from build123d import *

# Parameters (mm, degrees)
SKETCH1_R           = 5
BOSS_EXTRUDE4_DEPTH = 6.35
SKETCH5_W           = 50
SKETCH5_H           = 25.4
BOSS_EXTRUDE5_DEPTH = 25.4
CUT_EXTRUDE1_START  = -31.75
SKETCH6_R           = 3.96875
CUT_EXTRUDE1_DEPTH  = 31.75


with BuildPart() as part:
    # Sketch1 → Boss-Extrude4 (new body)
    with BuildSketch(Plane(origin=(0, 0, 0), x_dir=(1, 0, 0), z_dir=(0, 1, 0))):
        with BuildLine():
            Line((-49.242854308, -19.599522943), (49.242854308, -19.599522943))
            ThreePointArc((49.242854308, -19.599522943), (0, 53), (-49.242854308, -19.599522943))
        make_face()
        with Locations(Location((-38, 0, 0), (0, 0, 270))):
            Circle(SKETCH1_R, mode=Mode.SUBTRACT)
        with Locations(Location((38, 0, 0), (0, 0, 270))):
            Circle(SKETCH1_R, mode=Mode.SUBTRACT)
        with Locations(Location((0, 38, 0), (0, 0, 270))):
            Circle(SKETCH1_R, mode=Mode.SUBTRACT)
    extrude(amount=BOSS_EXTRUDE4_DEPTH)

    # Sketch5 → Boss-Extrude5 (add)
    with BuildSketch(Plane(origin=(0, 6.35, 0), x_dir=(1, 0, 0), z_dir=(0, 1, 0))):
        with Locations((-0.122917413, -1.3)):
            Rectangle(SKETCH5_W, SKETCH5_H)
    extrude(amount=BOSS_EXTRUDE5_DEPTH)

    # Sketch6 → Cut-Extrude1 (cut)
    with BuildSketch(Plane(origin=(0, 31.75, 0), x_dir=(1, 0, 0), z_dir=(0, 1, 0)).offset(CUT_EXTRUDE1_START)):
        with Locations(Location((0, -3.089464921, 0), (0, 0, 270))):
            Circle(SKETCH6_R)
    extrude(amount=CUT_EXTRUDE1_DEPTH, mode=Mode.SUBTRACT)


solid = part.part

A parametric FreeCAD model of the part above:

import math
import FreeCAD as App
import Part
import Sketcher
Q = App.Units.Quantity


def add_polygon(sketch, points):
    """Adds a closed chain of lines whose ends are joined by coincident constraints."""
    first, n = sketch.GeometryCount, len(points)
    for a, b in zip(points, points[1:] + points[:1]):
        sketch.addGeometry(Part.LineSegment(App.Vector(*a, 0), App.Vector(*b, 0)), False)
    for i in range(n):
        sketch.addConstraint(Sketcher.Constraint("Coincident", first + i, 2, first + (i + 1) % n, 1))

doc = App.newDocument("Part")
body = doc.addObject("PartDesign::Body", "Body")

sketch1 = body.newObject("Sketcher::SketchObject", "Sketch")
sketch1.AttachmentSupport = (doc.getObject("XZ_Plane"), [""])
sketch1.MapMode = "FlatFace"
sketch1.addGeometry([
    Part.LineSegment(App.Vector(-49, 20, 0), App.Vector(49, 20, 0)),
    Part.ArcOfCircle(Part.Circle(App.Vector(0, 0, 0), App.Vector(0, 0, 1), 53), math.radians(158), math.radians(382)),
    Part.Circle(App.Vector(-38, 0, 0), App.Vector(0, 0, 1), 5),
    Part.Circle(App.Vector(38, 0, 0), App.Vector(0, 0, 1), 5),
    Part.Circle(App.Vector(0, -38, 0), App.Vector(0, 0, 1), 5),
], False)
sketch1.addConstraint([
    Sketcher.Constraint("Coincident", 0, 1, 1, 1),
    Sketcher.Constraint("Coincident", 1, 2, 0, 2),
    Sketcher.Constraint("Horizontal", 0),
    Sketcher.Constraint("Coincident", 1, 3, -1, 1),
    Sketcher.Constraint("Equal", 2, 3),
    Sketcher.Constraint("Equal", 3, 4),
    Sketcher.Constraint("Symmetric", 2, 3, 3, 3, -1, 1),
    Sketcher.Constraint("PointOnObject", 2, 3, -1),
    Sketcher.Constraint("PointOnObject", 4, 3, -2),
    Sketcher.Constraint("Diameter", 2, Q("10 mm")),
    Sketcher.Constraint("Radius", 1, Q("53 mm")),
    Sketcher.Constraint("DistanceX", 0, 1, 0, 2, Q("98.485709 mm")),
    Sketcher.Constraint("DistanceX", 2, 3, -1, 1, Q("38 mm")),
    Sketcher.Constraint("DistanceY", 4, 3, -1, 1, Q("38 mm")),
])
pad1 = body.newObject("PartDesign::Pad", "Pad")
pad1.Profile = sketch1
pad1.Length = Q("0.25 in")
pad1.Reversed = True

sketch2 = body.newObject("Sketcher::SketchObject", "Sketch001")
sketch2.AttachmentSupport = (doc.getObject("XZ_Plane"), [""])
sketch2.MapMode = "FlatFace"
sketch2.AttachmentOffset = App.Placement(App.Vector(0, 0, -0.25 * 25.4), App.Rotation())
add_polygon(sketch2, [(-25, -11), (-25, 14), (25, 14), (25, -11)])
sketch2.addConstraint([
    Sketcher.Constraint("Vertical", 0),
    Sketcher.Constraint("Horizontal", 1),
    Sketcher.Constraint("Vertical", 2),
    Sketcher.Constraint("Horizontal", 3),
    Sketcher.Constraint("DistanceY", 0, 1, 0, 2, Q("1 in")),
    Sketcher.Constraint("DistanceX", 1, 1, 1, 2, Q("50 mm")),
    Sketcher.Constraint("DistanceY", -1, 1, 0, 2, Q("14 mm")),
    Sketcher.Constraint("DistanceX", 0, 2, -1, 1, Q("25.122917 mm")),
])
pad2 = body.newObject("PartDesign::Pad", "Pad001")
pad2.Profile = sketch2
pad2.Length = Q("1 in")
pad2.Reversed = True

sketch3 = body.newObject("Sketcher::SketchObject", "Sketch002")
sketch3.AttachmentSupport = (doc.getObject("XZ_Plane"), [""])
sketch3.MapMode = "FlatFace"
sketch3.addGeometry(Part.Circle(App.Vector(0, 3.1, 0), App.Vector(0, 0, 1), 4), False)
sketch3.addConstraint([
    Sketcher.Constraint("PointOnObject", 0, 3, -2),
    Sketcher.Constraint("Diameter", 0, Q("0.3125 in")),
    Sketcher.Constraint("DistanceY", -1, 1, 0, 3, Q("3.089465 mm")),
])
pocket1 = body.newObject("PartDesign::Pocket", "Pocket")
pocket1.Profile = sketch3
pocket1.Length = Q("1.25 in")

doc.recompute()
